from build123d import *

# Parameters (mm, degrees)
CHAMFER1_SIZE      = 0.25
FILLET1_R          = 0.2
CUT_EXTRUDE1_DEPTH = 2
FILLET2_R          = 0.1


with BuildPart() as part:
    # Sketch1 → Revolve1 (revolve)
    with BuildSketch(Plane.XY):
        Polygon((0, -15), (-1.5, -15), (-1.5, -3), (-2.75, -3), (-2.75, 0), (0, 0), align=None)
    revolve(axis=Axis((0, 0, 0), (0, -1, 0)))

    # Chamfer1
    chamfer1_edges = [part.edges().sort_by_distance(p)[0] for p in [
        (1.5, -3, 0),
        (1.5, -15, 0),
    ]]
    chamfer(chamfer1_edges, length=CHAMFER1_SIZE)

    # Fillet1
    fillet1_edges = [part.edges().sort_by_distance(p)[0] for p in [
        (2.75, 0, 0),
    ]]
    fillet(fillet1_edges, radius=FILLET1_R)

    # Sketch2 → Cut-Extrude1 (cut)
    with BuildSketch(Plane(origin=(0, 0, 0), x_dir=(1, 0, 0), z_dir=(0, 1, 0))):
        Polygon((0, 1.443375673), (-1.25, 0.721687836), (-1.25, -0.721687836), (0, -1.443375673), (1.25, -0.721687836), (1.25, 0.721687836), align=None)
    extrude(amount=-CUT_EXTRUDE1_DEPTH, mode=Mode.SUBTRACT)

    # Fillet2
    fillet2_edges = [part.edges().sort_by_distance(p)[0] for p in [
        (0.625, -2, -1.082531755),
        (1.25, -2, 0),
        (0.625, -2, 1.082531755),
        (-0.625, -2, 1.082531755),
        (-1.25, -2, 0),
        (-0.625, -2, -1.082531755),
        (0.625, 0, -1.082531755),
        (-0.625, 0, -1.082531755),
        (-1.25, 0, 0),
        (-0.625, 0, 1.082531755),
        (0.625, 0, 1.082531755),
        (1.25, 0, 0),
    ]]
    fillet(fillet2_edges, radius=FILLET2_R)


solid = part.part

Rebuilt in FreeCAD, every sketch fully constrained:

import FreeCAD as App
import Part
import Sketcher
from FreeCAD import Vector
Q = App.Units.Quantity


def edges_at(feature, points):
    """Names of the edges that pass closest to the given points."""
    edges = feature.Shape.Edges
    near = lambda p: min(range(len(edges)), key=lambda i: edges[i].distToShape(Part.Vertex(*p))[0])
    return sorted({f"Edge{near(p) + 1}" for p in points})

doc = App.newDocument("Part")
body = doc.addObject("PartDesign::Body", "Body")

# Sketch on XY plane
sketch1 = body.newObject("Sketcher::SketchObject", "Sketch")
sketch1.AttachmentSupport = (doc.getObject("XY_Plane"), [""])
sketch1.MapMode = "FlatFace"
sketch1.addGeometry([
    Part.LineSegment(Vector(-1.5, -15, 0), Vector(0, -15, 0)),  # 0
    Part.LineSegment(Vector(0, -15, 0), Vector(0, 0, 0)),  # 1
    Part.LineSegment(Vector(0, 0, 0), Vector(-2.8, 0, 0)),  # 2
    Part.LineSegment(Vector(-2.8, 0, 0), Vector(-2.8, -3, 0)),  # 3
    Part.LineSegment(Vector(-2.8, -3, 0), Vector(-1.5, -3, 0)),  # 4
    Part.LineSegment(Vector(-1.5, -3, 0), Vector(-1.5, -15, 0)),  # 5
], False)
sketch1.addConstraint([
    Sketcher.Constraint("Coincident", 0, 2, 1, 1),
    Sketcher.Constraint("Coincident", 1, 2, 2, 1),
    Sketcher.Constraint("Coincident", 2, 2, 3, 1),
    Sketcher.Constraint("Coincident", 3, 2, 4, 1),
    Sketcher.Constraint("Coincident", 4, 2, 5, 1),
    Sketcher.Constraint("Coincident", 5, 2, 0, 1),
    Sketcher.Constraint("Horizontal", 0),
    Sketcher.Constraint("Vertical", 1),
    Sketcher.Constraint("Horizontal", 2),
    Sketcher.Constraint("Vertical", 3),
    Sketcher.Constraint("Horizontal", 4),
    Sketcher.Constraint("Vertical", 5),
    Sketcher.Constraint("Coincident", 1, 2, -1, 1),
    Sketcher.Constraint("DistanceY", 1, 1, 1, 2, Q("15 mm")),
    Sketcher.Constraint("DistanceY", 3, 2, 3, 1, Q("3 mm")),
    Sketcher.Constraint("DistanceX", 0, 1, 0, 2, Q("1.5 mm")),
    Sketcher.Constraint("DistanceX", 2, 2, 2, 1, Q("2.75 mm")),
])
revolution = body.newObject("PartDesign::Revolution", "Revolution")
revolution.Profile = sketch1
revolution.ReferenceAxis = (sketch1, ["V_Axis"])
revolution.Angle = 360
doc.recompute()

chamfer = body.newObject("PartDesign::Chamfer", "Chamfer")
chamfer.Base = (revolution, edges_at(revolution, [(1.5, -3, 0), (1.5, -15, 0)]))
chamfer.Size = 0.25
doc.recompute()

fillet = body.newObject("PartDesign::Fillet", "Fillet")
fillet.Base = (chamfer, edges_at(chamfer, [(2.75, 0, 0)]))
fillet.Radius = 0.2

# Sketch on XZ plane
sketch2 = body.newObject("Sketcher::SketchObject", "Sketch001")
sketch2.AttachmentSupport = (doc.getObject("XZ_Plane"), [""])
sketch2.MapMode = "FlatFace"
sketch2.addGeometry([
    Part.LineSegment(Vector(0, -1.4, 0), Vector(-1.2, -0.7, 0)),  # 0
    Part.LineSegment(Vector(-1.2, -0.7, 0), Vector(-1.2, 0.7, 0)),  # 1
    Part.LineSegment(Vector(-1.2, 0.7, 0), Vector(0, 1.4, 0)),  # 2
    Part.LineSegment(Vector(0, 1.4, 0), Vector(1.2, 0.7, 0)),  # 3
    Part.LineSegment(Vector(1.2, 0.7, 0), Vector(1.2, -0.7, 0)),  # 4
    Part.LineSegment(Vector(1.2, -0.7, 0), Vector(0, -1.4, 0)),  # 5
], False)
sketch2.addConstraint([
    Sketcher.Constraint("Coincident", 0, 2, 1, 1),
    Sketcher.Constraint("Coincident", 1, 2, 2, 1),
    Sketcher.Constraint("Coincident", 2, 2, 3, 1),
    Sketcher.Constraint("Coincident", 3, 2, 4, 1),
    Sketcher.Constraint("Coincident", 4, 2, 5, 1),
    Sketcher.Constraint("Coincident", 5, 2, 0, 1),
    Sketcher.Constraint("Vertical", 1),
    Sketcher.Constraint("Vertical", 4),
    Sketcher.Constraint("Symmetric", 0, 2, 3, 2, -1, 1),
    Sketcher.Constraint("Symmetric", 2, 2, 5, 2, -1, 1),
    Sketcher.Constraint("PointOnObject", 2, 2, -2),
    Sketcher.Constraint("Parallel", 2, 5),
    Sketcher.Constraint("Horizontal", 1, 2, 3, 2),
    Sketcher.Constraint("Angle", 0, Q("150 deg")),
    Sketcher.Constraint("DistanceX", 1, 2, 3, 2, Q("2.5 mm")),
    Sketcher.Constraint("DistanceY", 1, 1, 1, 2, Q("1.443376 mm")),
])
pocket1 = body.newObject("PartDesign::Pocket", "Pocket")
pocket1.Profile = sketch2
pocket1.Length = 2
pocket1.Reversed = True
doc.recompute()

fillet2 = body.newObject("PartDesign::Fillet", "Fillet001")
fillet2.Base = (pocket1, edges_at(pocket1, [
    (0.625, -2, -1.083),
    (1.25, -2, 0),
    (0.625, -2, 1.083),
    (-0.625, -2, 1.083),
    (-1.25, -2, 0),
    (-0.625, -2, -1.083),
    (0.625, 0, -1.083),
    (-0.625, 0, -1.083),
    (-1.25, 0, 0),
    (-0.625, 0, 1.083),
    (0.625, 0, 1.083),
    (1.25, 0, 0),
]))
fillet2.Radius = 0.1

doc.recompute()
